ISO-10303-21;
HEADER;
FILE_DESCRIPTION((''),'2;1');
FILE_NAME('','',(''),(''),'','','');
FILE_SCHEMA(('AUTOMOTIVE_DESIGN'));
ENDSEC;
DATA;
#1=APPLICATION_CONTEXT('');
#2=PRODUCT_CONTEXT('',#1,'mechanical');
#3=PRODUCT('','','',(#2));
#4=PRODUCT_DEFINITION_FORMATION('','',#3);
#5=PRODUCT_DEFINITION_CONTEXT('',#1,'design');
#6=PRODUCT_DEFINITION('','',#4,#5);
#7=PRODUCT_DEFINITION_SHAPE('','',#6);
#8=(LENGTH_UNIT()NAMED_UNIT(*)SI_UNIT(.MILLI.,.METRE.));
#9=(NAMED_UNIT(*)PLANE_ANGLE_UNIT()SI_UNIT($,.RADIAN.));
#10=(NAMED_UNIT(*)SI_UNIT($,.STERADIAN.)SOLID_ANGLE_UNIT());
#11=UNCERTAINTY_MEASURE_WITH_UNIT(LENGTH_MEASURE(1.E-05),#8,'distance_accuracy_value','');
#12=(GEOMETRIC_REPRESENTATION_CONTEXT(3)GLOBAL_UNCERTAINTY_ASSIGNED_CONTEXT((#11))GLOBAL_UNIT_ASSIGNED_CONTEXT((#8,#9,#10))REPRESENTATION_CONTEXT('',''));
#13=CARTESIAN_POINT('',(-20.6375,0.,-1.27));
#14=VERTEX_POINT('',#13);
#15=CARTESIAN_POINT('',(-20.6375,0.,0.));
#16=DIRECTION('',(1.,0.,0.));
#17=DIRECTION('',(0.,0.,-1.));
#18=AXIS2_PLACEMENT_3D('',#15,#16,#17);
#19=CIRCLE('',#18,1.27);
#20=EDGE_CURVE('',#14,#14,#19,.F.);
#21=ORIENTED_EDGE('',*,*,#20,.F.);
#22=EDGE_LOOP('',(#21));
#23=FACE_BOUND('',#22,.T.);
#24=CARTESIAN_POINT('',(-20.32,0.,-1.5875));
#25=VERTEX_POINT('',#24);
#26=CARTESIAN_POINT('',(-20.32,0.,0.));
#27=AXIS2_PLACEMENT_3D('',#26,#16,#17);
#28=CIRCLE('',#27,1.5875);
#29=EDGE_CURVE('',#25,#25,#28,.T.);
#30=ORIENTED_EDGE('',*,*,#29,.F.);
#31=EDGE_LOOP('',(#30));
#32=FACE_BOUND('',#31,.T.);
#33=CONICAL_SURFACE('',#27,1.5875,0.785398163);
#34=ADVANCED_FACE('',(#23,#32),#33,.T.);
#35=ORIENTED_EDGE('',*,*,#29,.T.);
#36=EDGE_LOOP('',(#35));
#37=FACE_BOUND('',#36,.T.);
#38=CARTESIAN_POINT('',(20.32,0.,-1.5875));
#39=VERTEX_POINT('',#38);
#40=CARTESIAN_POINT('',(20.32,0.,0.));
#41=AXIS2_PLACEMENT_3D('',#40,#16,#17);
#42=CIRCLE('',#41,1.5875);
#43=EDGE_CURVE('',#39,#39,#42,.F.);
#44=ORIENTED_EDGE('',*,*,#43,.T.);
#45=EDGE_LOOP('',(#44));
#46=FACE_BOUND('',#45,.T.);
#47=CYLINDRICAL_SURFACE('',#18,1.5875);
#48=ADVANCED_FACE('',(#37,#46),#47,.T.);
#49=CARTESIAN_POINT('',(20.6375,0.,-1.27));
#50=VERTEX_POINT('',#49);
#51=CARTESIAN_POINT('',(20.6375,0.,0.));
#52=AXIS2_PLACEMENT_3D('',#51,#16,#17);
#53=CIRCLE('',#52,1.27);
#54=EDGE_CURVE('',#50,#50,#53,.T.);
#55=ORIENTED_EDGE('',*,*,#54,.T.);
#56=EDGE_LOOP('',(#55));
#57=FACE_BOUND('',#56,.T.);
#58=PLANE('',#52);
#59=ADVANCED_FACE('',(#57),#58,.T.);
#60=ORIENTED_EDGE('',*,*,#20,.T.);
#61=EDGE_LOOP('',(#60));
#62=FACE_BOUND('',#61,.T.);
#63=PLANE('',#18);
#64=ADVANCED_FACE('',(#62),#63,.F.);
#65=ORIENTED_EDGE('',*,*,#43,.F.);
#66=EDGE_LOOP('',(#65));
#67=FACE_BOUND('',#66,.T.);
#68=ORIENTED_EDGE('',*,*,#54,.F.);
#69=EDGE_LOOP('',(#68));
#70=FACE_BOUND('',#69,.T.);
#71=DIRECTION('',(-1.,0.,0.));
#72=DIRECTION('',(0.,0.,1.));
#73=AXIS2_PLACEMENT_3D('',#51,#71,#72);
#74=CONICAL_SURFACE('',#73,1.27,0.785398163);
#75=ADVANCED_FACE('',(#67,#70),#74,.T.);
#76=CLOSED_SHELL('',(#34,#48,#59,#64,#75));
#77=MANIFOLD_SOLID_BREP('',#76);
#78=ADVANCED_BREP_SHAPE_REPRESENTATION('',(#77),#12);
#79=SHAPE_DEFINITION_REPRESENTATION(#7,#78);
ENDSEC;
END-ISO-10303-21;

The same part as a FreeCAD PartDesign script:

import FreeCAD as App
import Part
import Sketcher
Q = App.Units.Quantity


def edges_at(feature, points):
    """Names of the edges that pass closest to the given points."""
    edges = feature.Shape.Edges
    near = lambda p: min(range(len(edges)), key=lambda i: edges[i].distToShape(Part.Vertex(*p))[0])
    return sorted({f"Edge{near(p) + 1}" for p in points})

doc = App.newDocument("Part")
body = doc.addObject("PartDesign::Body", "Body")

sketch1 = doc.addObject("Sketcher::SketchObject", "Sketch")
body.addObject(sketch1)
sketch1.AttachmentSupport = (doc.YZ_Plane, [""])
sketch1.MapMode = "FlatFace"
sketch1.addGeometry(Part.Circle(App.Vector(0, 0, 0), App.Vector(0, 0, 1), 1.6), False)
sketch1.addConstraint(Sketcher.Constraint("Coincident", 0, 3, -1, 1))
sketch1.addConstraint(Sketcher.Constraint("Diameter", 0, Q("0.125 in")))
pad1 = doc.addObject("PartDesign::Pad", "Pad")
body.addObject(pad1)
pad1.Profile = sketch1
pad1.Type = "TwoLengths"
pad1.Length = Q("0.8125 in")
pad1.Length2 = Q("0.8125 in")
doc.recompute()

chamfer = doc.addObject("PartDesign::Chamfer", "Chamfer")
body.addObject(chamfer)
chamfer.Base = (pad1, edges_at(pad1, [(-20.637, 0, 1.587), (20.637, 0, 1.587)]))
chamfer.Size = Q("0.0125 in")

doc.recompute()
